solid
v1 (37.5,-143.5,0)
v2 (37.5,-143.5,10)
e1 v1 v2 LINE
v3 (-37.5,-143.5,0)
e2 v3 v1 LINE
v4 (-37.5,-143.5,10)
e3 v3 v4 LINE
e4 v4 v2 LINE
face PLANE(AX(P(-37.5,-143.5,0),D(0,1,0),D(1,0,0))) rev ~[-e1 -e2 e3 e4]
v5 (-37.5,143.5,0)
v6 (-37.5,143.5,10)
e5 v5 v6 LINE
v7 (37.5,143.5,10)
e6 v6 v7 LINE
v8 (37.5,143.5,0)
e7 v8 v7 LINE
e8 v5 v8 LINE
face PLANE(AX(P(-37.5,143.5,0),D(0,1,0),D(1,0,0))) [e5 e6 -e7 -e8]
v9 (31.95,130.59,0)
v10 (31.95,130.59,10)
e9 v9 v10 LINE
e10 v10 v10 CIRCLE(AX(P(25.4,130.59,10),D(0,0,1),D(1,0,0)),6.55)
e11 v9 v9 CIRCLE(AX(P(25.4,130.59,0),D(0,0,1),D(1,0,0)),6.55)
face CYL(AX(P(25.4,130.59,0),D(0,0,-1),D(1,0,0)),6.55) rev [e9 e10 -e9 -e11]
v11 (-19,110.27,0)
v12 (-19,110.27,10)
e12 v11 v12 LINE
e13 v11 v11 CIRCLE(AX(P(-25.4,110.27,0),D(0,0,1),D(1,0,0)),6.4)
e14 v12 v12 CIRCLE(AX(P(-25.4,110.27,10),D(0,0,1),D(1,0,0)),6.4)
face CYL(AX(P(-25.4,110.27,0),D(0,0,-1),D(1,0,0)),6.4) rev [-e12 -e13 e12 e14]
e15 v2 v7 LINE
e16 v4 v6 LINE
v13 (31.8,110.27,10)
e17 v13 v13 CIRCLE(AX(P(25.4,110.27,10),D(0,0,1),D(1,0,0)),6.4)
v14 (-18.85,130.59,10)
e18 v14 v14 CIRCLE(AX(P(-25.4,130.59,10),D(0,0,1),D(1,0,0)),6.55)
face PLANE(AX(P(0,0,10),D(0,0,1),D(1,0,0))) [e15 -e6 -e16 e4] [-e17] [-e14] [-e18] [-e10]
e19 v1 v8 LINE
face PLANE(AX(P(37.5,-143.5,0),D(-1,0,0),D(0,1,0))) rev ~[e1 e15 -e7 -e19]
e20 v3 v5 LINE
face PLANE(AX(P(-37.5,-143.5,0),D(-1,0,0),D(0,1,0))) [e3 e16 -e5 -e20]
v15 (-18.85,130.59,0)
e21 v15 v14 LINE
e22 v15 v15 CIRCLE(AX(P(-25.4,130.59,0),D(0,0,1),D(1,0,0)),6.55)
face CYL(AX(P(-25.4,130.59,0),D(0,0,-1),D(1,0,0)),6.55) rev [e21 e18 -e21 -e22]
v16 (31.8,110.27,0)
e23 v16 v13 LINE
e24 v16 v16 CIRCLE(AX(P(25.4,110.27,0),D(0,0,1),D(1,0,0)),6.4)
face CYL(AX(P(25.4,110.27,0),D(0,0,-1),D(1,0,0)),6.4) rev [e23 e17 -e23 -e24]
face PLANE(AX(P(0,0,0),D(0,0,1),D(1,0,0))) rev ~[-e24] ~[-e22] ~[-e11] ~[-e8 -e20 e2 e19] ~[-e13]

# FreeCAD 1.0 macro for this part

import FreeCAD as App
import Part
import Sketcher

V = App.Vector
Q = App.Units.Quantity

doc = App.newDocument("Part")
params = doc.addObject("Spreadsheet::Sheet", "Params")
for row, (alias, value) in enumerate([
    ("sketch1_diameter", "12.8 mm"),
    ("sketch1_diameter2", "13.1 mm"),
    ("sketch1_width", "75 mm"),
    ("sketch1_height", "287 mm"),
    ("pad1_length", "10 mm"),
], start=1):
    params.set(f"A{row}", alias)
    params.set(f"B{row}", "=" + value)
    params.setAlias(f"B{row}", alias)

body = doc.addObject("PartDesign::Body", "Body")

sketch1 = body.newObject("Sketcher::SketchObject", "Sketch")
sketch1.AttachmentSupport = (doc.getObject("XY_Plane"), [""])
sketch1.MapMode = "FlatFace"
sketch1.addGeometry([
    Part.LineSegment(V(-38, 144, 0), V(-38, -144, 0)),
    Part.LineSegment(V(-38, -144, 0), V(38, -144, 0)),
    Part.LineSegment(V(38, -144, 0), V(38, 144, 0)),
    Part.LineSegment(V(38, 144, 0), V(-38, 144, 0)),
    Part.Circle(V(-25, 110, 0), V(0, 0, 1), 6),
    Part.Circle(V(25, 110, 0), V(0, 0, 1), 6),
    Part.Circle(V(-25, 131, 0), V(0, 0, 1), 7),
    Part.Circle(V(25, 131, 0), V(0, 0, 1), 7),
], False)
sketch1.addConstraint([
    Sketcher.Constraint("Coincident", 0, 2, 1, 1),
    Sketcher.Constraint("Coincident", 1, 2, 2, 1),
    Sketcher.Constraint("Coincident", 2, 2, 3, 1),
    Sketcher.Constraint("Coincident", 3, 2, 0, 1),
    Sketcher.Constraint("Vertical", 0),
    Sketcher.Constraint("Horizontal", 1),
    Sketcher.Constraint("Vertical", 2),
    Sketcher.Constraint("Horizontal", 3),
    Sketcher.Constraint("Equal", 4, 5),
    Sketcher.Constraint("Equal", 6, 7),
    Sketcher.Constraint("Symmetric", 0, 2, 2, 2, -1, 1),
    Sketcher.Constraint("Symmetric", 4, 3, 5, 3, -2),
    Sketcher.Constraint("Symmetric", 6, 3, 7, 3, -2),
    Sketcher.Constraint("Vertical", 4, 3, 6, 3),
    Sketcher.Constraint("Diameter", 4, Q("12.8 mm")),
    Sketcher.Constraint("Diameter", 6, Q("13.1 mm")),
    Sketcher.Constraint("DistanceX", 1, 1, 1, 2, Q("75 mm")),
    Sketcher.Constraint("DistanceY", 0, 2, 0, 1, Q("287 mm")),
    Sketcher.Constraint("DistanceX", 4, 3, -1, 1, Q("25.4 mm")),
    Sketcher.Constraint("DistanceY", -1, 1, 4, 3, Q("110.27 mm")),
    Sketcher.Constraint("DistanceY", -1, 1, 6, 3, Q("130.59 mm")),
])
sketch1.setExpression("Constraints[14]", "Params.sketch1_diameter")
sketch1.setExpression("Constraints[15]", "Params.sketch1_diameter2")
sketch1.setExpression("Constraints[16]", "Params.sketch1_width")
sketch1.setExpression("Constraints[17]", "Params.sketch1_height")
pad1 = body.newObject("PartDesign::Pad", "Pad")
pad1.Profile = sketch1
pad1.setExpression("Length", "Params.pad1_length")

doc.recompute()
